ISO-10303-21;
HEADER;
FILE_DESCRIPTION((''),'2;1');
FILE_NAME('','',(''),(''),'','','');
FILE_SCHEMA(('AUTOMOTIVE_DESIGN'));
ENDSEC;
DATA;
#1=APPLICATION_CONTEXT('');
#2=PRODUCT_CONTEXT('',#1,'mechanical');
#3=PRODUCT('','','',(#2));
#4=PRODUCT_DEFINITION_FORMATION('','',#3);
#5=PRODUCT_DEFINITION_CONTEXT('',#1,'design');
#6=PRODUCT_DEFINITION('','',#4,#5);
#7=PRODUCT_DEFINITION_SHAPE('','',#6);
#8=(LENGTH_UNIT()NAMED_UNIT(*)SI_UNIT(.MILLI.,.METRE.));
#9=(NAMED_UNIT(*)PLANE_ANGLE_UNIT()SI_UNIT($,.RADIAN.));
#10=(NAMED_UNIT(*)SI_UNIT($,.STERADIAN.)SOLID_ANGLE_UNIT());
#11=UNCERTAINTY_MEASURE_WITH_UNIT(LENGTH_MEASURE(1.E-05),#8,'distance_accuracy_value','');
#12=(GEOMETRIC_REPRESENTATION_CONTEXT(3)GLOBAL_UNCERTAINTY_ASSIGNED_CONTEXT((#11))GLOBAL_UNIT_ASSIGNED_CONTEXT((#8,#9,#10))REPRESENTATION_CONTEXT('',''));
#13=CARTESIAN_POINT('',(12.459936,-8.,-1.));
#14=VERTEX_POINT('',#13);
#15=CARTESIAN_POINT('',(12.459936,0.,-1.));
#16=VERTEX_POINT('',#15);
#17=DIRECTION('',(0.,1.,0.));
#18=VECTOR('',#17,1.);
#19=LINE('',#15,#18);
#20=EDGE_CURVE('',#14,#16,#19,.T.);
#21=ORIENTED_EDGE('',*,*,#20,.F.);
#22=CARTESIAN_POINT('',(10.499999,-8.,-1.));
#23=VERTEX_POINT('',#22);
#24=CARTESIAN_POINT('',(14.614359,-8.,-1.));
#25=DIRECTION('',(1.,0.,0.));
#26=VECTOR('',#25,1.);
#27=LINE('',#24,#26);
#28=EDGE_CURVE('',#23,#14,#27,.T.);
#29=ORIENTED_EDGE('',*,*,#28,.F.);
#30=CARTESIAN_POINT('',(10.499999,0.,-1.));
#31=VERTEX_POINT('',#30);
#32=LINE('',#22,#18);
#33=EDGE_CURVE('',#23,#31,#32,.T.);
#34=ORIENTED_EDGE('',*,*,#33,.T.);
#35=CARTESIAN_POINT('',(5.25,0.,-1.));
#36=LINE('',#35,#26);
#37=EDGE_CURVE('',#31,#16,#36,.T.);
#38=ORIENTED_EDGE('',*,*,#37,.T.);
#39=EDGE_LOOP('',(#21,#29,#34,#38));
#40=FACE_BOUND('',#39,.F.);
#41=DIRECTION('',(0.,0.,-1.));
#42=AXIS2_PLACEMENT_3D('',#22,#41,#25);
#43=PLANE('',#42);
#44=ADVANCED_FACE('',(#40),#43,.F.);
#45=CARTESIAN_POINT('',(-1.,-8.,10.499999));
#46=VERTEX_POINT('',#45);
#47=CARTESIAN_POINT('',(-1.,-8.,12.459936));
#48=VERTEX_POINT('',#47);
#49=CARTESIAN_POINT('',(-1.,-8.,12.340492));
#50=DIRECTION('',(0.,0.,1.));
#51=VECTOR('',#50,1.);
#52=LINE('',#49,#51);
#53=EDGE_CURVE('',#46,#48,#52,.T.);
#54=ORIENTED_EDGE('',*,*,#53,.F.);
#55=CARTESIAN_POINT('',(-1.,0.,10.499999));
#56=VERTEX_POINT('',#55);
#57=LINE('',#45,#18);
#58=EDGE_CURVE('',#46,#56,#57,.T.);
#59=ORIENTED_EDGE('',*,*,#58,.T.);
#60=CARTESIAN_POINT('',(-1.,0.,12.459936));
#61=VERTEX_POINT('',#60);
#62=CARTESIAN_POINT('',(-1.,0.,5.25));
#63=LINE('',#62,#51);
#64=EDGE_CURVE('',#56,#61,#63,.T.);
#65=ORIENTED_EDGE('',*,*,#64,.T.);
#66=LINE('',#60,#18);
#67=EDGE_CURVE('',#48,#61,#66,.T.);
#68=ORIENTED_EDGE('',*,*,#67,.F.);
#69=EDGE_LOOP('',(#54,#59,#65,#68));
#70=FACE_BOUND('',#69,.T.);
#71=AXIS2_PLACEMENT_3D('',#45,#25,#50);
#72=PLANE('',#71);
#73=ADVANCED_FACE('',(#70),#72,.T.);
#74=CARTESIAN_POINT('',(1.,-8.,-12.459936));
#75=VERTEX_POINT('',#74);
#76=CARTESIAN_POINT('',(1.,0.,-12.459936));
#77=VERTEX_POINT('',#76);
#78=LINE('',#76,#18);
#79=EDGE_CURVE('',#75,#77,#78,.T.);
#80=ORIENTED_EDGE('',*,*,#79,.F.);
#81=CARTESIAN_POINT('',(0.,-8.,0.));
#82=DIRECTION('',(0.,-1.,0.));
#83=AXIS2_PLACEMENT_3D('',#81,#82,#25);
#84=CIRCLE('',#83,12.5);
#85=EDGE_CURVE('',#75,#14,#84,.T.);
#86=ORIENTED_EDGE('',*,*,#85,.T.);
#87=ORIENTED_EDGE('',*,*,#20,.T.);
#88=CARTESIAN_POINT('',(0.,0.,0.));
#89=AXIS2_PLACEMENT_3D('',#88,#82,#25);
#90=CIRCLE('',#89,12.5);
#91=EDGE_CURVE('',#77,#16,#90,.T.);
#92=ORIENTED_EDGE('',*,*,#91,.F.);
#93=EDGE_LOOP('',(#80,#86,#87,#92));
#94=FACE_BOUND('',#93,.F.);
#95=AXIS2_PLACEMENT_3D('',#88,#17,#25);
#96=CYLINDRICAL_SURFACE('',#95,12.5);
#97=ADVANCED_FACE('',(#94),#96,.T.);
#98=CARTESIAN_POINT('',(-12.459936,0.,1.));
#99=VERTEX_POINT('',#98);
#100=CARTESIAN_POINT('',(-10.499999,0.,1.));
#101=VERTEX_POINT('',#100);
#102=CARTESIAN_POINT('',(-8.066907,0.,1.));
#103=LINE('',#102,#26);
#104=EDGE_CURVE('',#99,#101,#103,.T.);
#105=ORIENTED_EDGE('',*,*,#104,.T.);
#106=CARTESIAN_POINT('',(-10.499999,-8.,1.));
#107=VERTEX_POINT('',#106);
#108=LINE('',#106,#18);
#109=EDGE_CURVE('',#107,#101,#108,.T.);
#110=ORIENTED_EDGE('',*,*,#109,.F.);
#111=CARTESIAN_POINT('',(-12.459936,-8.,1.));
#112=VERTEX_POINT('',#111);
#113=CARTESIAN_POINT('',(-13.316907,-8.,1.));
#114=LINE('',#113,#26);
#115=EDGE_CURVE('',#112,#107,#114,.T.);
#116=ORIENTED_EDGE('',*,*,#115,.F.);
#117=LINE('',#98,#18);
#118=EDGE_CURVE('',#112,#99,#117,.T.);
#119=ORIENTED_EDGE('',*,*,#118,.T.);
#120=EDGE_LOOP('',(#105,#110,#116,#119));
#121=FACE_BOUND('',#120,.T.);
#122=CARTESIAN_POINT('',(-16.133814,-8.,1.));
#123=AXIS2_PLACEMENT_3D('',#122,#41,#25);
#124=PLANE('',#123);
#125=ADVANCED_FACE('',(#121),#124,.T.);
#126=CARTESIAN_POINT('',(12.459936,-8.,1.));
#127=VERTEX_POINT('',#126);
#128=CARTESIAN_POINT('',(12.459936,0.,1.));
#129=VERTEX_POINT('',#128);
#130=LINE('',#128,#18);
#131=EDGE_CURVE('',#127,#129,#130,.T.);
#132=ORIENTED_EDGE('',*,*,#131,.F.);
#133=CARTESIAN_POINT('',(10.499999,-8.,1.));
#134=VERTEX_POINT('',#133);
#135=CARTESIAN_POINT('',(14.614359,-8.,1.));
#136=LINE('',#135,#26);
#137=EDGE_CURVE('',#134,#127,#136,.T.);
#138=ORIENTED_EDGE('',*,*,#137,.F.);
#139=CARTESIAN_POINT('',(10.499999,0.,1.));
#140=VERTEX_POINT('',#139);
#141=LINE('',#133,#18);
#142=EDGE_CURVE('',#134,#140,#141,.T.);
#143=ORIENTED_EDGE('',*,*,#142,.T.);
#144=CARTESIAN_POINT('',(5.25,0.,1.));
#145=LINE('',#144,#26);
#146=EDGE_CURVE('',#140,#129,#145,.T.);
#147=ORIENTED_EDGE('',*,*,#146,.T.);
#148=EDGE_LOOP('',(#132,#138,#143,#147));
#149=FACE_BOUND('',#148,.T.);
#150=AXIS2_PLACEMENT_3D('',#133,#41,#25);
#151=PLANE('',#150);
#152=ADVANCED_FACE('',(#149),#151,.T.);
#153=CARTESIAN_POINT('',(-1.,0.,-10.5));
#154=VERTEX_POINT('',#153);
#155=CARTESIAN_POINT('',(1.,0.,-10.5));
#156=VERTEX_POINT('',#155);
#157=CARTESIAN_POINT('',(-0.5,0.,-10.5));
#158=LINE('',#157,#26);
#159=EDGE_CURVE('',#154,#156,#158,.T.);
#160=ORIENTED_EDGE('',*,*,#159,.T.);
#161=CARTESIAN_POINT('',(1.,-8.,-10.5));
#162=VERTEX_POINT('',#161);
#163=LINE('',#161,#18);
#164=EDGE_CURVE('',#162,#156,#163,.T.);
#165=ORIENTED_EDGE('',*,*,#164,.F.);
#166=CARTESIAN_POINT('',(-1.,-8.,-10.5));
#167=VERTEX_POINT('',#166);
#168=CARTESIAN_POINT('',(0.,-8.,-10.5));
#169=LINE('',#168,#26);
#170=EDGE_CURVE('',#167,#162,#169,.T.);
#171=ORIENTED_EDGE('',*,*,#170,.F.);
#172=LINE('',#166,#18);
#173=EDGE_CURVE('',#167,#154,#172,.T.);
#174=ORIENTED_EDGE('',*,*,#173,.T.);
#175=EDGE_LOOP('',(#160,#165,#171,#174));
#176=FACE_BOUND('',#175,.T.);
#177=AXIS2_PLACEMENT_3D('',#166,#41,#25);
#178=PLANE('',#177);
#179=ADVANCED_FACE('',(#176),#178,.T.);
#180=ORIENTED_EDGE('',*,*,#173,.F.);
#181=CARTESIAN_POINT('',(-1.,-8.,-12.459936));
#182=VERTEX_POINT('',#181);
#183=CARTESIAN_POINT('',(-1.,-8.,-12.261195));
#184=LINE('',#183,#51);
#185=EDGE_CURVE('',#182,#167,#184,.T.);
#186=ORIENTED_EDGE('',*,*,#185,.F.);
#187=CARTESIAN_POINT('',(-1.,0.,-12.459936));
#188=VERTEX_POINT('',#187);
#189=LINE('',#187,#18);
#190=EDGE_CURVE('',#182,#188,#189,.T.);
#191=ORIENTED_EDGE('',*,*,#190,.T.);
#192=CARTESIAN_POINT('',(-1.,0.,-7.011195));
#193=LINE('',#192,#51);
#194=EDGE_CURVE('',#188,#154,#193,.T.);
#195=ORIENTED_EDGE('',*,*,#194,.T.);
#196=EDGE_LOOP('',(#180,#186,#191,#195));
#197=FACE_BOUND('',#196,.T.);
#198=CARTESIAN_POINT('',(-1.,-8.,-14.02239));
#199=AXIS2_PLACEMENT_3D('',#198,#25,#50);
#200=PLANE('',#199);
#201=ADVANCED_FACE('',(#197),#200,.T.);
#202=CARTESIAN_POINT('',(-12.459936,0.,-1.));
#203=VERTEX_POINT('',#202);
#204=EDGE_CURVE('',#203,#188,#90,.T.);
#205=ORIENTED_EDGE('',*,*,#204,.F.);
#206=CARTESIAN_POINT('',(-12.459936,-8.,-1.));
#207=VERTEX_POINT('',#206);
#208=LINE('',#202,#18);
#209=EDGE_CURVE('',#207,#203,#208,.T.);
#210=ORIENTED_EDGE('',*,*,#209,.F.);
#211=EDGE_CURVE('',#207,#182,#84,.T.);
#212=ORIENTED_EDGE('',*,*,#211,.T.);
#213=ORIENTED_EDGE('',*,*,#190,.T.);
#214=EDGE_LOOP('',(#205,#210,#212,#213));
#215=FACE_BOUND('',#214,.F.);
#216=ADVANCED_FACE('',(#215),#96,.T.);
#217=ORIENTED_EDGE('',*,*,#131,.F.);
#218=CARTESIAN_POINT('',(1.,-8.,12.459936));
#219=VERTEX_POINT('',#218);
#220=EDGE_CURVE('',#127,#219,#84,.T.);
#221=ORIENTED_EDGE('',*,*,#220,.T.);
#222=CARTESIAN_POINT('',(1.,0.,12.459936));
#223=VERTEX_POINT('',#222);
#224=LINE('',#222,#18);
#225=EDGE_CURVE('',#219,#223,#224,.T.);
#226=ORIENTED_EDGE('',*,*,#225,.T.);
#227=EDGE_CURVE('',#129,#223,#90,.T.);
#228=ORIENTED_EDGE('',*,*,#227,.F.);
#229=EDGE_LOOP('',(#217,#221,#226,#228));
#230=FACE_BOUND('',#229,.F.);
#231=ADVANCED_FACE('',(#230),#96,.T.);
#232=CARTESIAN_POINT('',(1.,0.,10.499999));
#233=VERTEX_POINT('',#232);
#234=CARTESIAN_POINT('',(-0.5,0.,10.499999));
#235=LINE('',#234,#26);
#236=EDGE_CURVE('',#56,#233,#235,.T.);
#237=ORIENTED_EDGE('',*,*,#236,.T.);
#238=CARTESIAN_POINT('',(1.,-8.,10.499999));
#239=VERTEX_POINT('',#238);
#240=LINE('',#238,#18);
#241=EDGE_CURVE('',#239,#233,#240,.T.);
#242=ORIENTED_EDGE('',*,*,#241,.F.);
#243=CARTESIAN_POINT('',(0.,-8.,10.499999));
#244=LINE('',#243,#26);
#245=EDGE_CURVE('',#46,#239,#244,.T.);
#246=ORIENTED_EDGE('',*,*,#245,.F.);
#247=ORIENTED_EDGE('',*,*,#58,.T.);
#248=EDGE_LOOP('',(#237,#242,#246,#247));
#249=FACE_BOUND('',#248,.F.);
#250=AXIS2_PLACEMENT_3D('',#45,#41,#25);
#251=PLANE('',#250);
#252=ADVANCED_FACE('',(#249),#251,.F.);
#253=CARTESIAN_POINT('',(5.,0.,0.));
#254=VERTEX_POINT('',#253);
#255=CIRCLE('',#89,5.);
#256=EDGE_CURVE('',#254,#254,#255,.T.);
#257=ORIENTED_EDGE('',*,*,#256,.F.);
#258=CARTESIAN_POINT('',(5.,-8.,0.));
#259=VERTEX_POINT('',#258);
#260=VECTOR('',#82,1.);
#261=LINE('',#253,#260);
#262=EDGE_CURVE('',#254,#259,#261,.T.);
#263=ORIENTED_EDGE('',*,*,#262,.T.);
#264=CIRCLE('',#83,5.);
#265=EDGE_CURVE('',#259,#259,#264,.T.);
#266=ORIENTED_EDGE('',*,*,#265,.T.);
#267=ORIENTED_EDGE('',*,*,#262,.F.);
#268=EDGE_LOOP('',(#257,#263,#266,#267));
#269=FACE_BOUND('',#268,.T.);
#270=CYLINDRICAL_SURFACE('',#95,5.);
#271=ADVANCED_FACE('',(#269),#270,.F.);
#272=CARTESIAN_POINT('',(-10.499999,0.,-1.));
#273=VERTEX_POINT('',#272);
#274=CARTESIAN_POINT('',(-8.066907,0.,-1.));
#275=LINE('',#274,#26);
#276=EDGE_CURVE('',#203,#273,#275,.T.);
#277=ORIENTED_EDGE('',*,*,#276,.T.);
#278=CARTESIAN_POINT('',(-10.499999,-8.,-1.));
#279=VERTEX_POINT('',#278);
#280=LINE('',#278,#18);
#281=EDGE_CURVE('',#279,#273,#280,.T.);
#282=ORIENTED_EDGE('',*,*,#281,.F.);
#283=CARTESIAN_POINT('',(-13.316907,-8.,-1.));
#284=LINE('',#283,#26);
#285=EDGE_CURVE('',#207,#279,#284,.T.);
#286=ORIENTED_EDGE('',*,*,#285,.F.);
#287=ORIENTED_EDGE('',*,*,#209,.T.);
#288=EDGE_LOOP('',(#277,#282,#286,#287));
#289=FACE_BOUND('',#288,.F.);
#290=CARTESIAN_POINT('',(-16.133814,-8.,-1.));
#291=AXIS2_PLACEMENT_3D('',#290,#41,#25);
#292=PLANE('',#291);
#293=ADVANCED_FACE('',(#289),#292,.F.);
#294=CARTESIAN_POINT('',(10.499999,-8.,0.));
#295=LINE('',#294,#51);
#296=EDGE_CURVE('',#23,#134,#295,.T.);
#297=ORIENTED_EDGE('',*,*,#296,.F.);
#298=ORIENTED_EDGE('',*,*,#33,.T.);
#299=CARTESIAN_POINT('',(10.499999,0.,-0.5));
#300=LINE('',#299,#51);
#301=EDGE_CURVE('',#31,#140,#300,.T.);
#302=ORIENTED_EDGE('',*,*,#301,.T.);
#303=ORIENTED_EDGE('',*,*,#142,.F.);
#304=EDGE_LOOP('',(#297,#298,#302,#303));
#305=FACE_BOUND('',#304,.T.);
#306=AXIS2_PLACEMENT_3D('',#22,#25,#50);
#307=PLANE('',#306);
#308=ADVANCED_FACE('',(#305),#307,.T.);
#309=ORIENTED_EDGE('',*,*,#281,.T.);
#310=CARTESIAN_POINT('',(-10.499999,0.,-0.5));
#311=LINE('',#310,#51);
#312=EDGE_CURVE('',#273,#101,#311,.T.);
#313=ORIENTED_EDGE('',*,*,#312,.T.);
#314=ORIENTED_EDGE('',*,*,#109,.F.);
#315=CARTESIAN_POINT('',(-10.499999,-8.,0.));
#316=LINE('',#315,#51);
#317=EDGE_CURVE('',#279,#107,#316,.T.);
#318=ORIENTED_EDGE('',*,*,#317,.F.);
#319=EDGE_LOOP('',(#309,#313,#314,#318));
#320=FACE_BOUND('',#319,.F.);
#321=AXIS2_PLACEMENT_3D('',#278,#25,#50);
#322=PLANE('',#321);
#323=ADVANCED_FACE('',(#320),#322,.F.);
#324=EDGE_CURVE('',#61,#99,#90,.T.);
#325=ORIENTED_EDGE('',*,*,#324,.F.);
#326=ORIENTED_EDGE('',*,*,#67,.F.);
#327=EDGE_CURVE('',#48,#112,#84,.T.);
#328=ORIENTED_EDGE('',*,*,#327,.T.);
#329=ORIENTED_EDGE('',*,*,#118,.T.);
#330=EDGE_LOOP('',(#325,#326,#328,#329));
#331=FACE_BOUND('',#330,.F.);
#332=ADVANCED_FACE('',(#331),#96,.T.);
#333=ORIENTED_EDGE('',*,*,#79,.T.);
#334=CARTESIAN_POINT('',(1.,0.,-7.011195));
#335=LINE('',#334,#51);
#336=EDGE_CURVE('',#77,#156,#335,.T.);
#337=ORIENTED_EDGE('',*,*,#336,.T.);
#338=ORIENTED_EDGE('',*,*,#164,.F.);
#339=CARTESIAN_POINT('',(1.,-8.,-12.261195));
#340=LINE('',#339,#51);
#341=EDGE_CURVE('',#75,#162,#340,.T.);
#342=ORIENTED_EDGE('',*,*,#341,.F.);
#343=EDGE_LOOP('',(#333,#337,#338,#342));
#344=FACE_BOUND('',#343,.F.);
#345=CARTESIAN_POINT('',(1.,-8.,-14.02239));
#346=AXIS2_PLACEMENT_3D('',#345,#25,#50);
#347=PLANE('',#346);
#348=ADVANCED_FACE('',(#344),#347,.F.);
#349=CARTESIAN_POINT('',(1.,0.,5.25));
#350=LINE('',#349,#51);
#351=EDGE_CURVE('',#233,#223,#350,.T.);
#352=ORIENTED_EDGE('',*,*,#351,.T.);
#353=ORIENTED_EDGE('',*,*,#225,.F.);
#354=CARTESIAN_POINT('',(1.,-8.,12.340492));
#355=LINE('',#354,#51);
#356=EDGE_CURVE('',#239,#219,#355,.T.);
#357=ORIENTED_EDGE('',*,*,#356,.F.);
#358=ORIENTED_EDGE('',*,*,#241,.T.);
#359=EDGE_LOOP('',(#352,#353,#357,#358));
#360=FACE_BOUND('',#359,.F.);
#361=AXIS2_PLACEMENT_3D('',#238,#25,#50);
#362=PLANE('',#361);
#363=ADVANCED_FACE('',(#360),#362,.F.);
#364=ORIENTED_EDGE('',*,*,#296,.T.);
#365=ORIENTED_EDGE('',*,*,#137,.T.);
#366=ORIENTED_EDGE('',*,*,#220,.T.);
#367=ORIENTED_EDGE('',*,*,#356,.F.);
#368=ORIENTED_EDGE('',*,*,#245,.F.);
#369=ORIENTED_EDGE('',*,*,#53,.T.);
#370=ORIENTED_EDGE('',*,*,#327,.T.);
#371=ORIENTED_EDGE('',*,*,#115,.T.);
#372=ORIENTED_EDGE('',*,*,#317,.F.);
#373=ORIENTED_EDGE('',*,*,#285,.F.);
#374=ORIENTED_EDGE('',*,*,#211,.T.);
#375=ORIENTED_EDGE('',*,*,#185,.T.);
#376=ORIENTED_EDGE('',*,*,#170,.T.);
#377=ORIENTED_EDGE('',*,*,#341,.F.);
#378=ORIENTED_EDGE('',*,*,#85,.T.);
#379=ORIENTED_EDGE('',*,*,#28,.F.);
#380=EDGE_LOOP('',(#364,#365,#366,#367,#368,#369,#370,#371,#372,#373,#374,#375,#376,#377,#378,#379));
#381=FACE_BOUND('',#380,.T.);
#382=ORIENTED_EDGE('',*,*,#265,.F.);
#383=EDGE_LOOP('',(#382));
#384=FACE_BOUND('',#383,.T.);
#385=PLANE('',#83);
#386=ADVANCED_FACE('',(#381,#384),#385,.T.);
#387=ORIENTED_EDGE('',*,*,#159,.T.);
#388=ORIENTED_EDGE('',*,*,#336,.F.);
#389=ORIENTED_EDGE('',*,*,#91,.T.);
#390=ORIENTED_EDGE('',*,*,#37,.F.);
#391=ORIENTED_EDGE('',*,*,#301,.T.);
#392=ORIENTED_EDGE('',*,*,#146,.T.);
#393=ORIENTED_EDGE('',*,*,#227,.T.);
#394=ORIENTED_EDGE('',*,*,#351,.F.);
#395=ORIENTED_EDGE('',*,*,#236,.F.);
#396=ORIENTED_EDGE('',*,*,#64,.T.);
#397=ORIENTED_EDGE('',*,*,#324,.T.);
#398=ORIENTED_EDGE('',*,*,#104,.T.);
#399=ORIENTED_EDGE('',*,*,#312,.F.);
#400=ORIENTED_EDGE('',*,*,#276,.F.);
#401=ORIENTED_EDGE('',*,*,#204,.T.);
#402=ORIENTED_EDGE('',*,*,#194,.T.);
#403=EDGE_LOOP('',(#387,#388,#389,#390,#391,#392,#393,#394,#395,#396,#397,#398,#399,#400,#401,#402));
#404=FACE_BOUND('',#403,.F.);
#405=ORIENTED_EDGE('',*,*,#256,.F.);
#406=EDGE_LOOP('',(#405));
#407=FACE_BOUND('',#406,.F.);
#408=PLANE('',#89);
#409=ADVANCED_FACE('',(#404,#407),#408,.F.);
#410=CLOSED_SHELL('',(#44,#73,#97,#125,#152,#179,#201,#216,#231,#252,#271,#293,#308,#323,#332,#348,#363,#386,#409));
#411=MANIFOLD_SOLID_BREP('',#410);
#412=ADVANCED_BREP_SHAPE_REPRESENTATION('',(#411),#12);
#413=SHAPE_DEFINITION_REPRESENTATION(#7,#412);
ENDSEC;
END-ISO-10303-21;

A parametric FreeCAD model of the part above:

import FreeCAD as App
import Part
import Sketcher
from FreeCAD import Vector
Q = App.Units.Quantity


def add_polygon(sketch, points):
    """Adds a closed chain of lines whose ends are joined by coincident constraints."""
    first, n = sketch.GeometryCount, len(points)
    for a, b in zip(points, points[1:] + points[:1]):
        sketch.addGeometry(Part.LineSegment(App.Vector(*a, 0), App.Vector(*b, 0)), False)
    for i in range(n):
        sketch.addConstraint(Sketcher.Constraint("Coincident", first + i, 2, first + (i + 1) % n, 1))

doc = App.newDocument("Part")
body = doc.addObject("PartDesign::Body", "Body")

# Sketch on XZ plane
sketch1 = body.newObject("Sketcher::SketchObject", "Sketch")
sketch1.AttachmentSupport = (doc.getObject("XZ_Plane"), [""])
sketch1.MapMode = "FlatFace"
sketch1.addGeometry([
    Part.Circle(Vector(0, 0, 0), Vector(0, 0, 1), 12),
    Part.Circle(Vector(0, 0, 0), Vector(0, 0, 1), 5),
], False)
sketch1.addConstraint([
    Sketcher.Constraint("Coincident", 0, 3, -1, 1),
    Sketcher.Constraint("Coincident", 1, 3, -1, 1),
    Sketcher.Constraint("Diameter", 0, Q("25 mm")),
    Sketcher.Constraint("Diameter", 1, Q("10 mm")),
])
pad1 = body.newObject("PartDesign::Pad", "Pad")
pad1.Profile = sketch1
pad1.Length = 8

# Sketch on XZ plane
sketch2 = body.newObject("Sketcher::SketchObject", "Sketch001")
sketch2.AttachmentSupport = (doc.getObject("XZ_Plane"), [""])
sketch2.MapMode = "FlatFace"
sketch2.AttachmentOffset = App.Placement(Vector(0, 0, 8), App.Rotation())
add_polygon(sketch2, [(10.5, 1), (10.5, -1), (18.7, -1), (18.7, 1)])  # lines 0-3
add_polygon(sketch2, [(-16.1, 1), (-16.1, -1), (-10.5, -1), (-10.5, 1)])  # lines 4-7
sketch2.addConstraint([
    Sketcher.Constraint("Vertical", 0),
    Sketcher.Constraint("Horizontal", 1),
    Sketcher.Constraint("Vertical", 2),
    Sketcher.Constraint("Horizontal", 3),
    Sketcher.Constraint("Vertical", 4),
    Sketcher.Constraint("Horizontal", 5),
    Sketcher.Constraint("Vertical", 6),
    Sketcher.Constraint("Horizontal", 7),
    Sketcher.Constraint("Symmetric", 3, 2, 5, 2, -1, 1),
    Sketcher.Constraint("Horizontal", 1, 2, 4, 2),
    Sketcher.Constraint("Horizontal", 3, 2, 6, 2),
    Sketcher.Constraint("DistanceY", 0, 2, 0, 1, Q("2 mm")),
    Sketcher.Constraint("DistanceX", 5, 2, 0, 2, Q("20.999999 mm")),
    Sketcher.Constraint("DistanceX", 1, 1, 1, 2, Q("8.228719 mm")),
    Sketcher.Constraint("DistanceX", 5, 1, 5, 2, Q("5.633815 mm")),
])
pocket1 = body.newObject("PartDesign::Pocket", "Pocket")
pocket1.Profile = sketch2
pocket1.Type = "ThroughAll"

# Sketch on XZ plane
sketch3 = body.newObject("Sketcher::SketchObject", "Sketch002")
sketch3.AttachmentSupport = (doc.getObject("XZ_Plane"), [""])
sketch3.MapMode = "FlatFace"
sketch3.AttachmentOffset = App.Placement(Vector(0, 0, 8), App.Rotation())
add_polygon(sketch3, [(-1, 14.2), (-1, 10.5), (1, 10.5), (1, 14.2)])  # lines 0-3
add_polygon(sketch3, [(-1, -10.5), (-1, -14), (1, -14), (1, -10.5)])  # lines 4-7
sketch3.addConstraint([
    Sketcher.Constraint("Vertical", 0),
    Sketcher.Constraint("Horizontal", 1),
    Sketcher.Constraint("Vertical", 2),
    Sketcher.Constraint("Horizontal", 3),
    Sketcher.Constraint("Vertical", 4),
    Sketcher.Constraint("Horizontal", 5),
    Sketcher.Constraint("Vertical", 6),
    Sketcher.Constraint("Horizontal", 7),
    Sketcher.Constraint("Symmetric", 0, 2, 6, 2, -1, 1),
    Sketcher.Constraint("Vertical", 3, 2, 4, 2),
    Sketcher.Constraint("Vertical", 2, 2, 5, 2),
    Sketcher.Constraint("DistanceX", 1, 1, 1, 2, Q("2 mm")),
    Sketcher.Constraint("DistanceY", 6, 2, 1, 2, Q("21 mm")),
    Sketcher.Constraint("DistanceY", 4, 2, 4, 1, Q("3.52239 mm")),
    Sketcher.Constraint("DistanceY", 0, 2, 0, 1, Q("3.680985 mm")),
])
pocket2 = body.newObject("PartDesign::Pocket", "Pocket001")
pocket2.Profile = sketch3
pocket2.Type = "ThroughAll"

doc.recompute()
